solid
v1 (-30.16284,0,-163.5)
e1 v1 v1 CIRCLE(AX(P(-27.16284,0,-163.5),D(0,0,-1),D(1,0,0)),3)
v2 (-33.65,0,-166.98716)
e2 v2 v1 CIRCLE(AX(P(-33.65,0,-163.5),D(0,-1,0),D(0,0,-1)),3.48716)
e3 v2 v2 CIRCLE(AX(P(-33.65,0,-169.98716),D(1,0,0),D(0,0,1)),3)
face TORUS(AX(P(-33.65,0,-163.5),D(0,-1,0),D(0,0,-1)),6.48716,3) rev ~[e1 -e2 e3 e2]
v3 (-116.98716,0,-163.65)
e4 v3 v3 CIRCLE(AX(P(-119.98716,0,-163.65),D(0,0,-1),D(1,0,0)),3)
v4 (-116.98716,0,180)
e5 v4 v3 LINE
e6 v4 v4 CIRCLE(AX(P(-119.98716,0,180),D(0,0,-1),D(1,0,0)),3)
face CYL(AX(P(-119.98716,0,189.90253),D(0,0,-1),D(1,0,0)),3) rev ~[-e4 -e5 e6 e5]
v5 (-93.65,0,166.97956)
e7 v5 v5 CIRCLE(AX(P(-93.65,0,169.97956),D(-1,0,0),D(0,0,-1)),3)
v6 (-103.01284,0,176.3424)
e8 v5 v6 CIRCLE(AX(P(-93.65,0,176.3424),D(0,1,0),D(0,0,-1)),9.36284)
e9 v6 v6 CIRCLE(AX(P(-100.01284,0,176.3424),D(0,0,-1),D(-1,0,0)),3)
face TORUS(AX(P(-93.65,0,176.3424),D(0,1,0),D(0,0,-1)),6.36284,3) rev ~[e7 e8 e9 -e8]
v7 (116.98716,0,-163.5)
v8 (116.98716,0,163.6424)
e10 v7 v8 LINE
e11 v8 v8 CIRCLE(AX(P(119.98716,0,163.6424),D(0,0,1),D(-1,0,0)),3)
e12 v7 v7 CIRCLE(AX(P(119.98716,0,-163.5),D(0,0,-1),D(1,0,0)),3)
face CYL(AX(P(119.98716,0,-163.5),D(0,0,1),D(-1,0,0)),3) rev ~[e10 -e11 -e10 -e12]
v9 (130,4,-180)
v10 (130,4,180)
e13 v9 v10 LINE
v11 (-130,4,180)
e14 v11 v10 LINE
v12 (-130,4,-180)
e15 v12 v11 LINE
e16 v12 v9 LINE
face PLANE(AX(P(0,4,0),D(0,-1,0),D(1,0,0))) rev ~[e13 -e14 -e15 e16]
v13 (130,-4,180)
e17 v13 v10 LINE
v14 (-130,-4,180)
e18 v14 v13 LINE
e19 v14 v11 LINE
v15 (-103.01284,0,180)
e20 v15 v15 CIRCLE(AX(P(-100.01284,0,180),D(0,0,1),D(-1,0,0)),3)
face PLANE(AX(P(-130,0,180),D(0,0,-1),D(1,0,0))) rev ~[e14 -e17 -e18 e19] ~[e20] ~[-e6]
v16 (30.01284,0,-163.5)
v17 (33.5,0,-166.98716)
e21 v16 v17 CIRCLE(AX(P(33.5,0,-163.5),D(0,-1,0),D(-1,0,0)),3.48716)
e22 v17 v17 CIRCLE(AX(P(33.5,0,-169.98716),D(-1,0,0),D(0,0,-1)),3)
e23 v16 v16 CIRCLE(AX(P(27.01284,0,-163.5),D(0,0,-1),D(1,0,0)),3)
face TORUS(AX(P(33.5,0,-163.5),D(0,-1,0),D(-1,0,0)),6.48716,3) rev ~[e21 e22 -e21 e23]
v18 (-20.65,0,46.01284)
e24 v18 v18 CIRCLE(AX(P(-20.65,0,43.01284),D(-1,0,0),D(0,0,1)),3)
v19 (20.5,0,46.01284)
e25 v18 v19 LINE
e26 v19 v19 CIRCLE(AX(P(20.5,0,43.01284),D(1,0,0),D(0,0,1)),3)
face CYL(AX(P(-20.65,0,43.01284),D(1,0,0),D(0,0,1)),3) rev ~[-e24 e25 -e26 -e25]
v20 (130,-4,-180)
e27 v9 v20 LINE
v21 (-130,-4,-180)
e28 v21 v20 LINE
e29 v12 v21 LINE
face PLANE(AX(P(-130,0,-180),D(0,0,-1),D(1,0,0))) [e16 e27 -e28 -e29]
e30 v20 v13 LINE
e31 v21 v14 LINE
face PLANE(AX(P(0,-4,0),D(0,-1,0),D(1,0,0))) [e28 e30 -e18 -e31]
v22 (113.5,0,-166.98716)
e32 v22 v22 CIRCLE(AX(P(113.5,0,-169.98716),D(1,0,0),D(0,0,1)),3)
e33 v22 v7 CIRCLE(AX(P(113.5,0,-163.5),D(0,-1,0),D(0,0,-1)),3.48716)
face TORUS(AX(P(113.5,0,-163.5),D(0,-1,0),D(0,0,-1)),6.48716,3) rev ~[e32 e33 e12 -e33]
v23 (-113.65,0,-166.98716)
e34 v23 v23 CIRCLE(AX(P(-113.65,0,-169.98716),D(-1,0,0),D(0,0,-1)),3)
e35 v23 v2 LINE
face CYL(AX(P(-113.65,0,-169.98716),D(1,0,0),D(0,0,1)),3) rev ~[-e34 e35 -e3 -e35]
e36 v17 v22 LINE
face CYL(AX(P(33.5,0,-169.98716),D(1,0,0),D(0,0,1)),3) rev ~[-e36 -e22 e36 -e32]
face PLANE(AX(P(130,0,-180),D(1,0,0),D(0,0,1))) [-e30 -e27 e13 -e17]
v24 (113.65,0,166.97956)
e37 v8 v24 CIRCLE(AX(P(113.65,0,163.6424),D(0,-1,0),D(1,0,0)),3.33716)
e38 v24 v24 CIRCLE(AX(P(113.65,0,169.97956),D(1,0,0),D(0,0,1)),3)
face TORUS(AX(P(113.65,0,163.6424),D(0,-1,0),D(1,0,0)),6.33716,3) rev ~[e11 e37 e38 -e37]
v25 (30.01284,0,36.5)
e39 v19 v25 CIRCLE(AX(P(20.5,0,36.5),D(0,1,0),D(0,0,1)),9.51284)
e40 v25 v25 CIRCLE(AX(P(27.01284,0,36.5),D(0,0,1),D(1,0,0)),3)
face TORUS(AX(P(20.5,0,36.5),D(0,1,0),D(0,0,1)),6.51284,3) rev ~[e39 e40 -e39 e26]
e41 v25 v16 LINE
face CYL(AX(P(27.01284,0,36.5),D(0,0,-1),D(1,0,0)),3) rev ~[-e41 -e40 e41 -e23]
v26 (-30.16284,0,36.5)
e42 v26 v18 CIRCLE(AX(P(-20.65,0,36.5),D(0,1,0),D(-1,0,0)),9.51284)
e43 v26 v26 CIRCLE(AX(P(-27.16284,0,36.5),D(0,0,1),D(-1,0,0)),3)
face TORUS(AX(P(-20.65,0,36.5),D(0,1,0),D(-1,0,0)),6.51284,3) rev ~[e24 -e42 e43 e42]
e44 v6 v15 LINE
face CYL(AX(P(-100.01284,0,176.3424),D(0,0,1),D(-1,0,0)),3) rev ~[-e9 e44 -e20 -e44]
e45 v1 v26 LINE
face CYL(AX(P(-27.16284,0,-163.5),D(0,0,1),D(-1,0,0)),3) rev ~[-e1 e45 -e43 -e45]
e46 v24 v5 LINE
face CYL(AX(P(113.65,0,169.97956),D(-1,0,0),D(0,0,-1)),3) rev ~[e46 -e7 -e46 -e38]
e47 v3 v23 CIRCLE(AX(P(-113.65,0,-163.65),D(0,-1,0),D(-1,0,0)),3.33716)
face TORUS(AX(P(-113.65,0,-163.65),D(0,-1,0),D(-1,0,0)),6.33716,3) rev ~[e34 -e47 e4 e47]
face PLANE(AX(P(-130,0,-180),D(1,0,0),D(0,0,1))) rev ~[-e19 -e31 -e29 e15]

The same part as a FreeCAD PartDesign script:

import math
import FreeCAD as App
import Part
import Sketcher
from FreeCAD import Vector
Q = App.Units.Quantity

doc = App.newDocument("Part")
body = doc.addObject("PartDesign::Body", "Body")

# Sketch on XZ plane
sketch1 = body.newObject("Sketcher::SketchObject", "Sketch")
sketch1.AttachmentSupport = (doc.getObject("XZ_Plane"), [""])
sketch1.MapMode = "FlatFace"
sketch1.addGeometry([
    Part.LineSegment(Vector(-130, 180, 0), Vector(-130, -180, 0)),
    Part.LineSegment(Vector(-130, -180, 0), Vector(130, -180, 0)),
    Part.LineSegment(Vector(130, -180, 0), Vector(130, 180, 0)),
    Part.LineSegment(Vector(130, 180, 0), Vector(-130, 180, 0)),
], False)
sketch1.addConstraint([
    Sketcher.Constraint("Coincident", 0, 2, 1, 1),
    Sketcher.Constraint("Coincident", 1, 2, 2, 1),
    Sketcher.Constraint("Coincident", 2, 2, 3, 1),
    Sketcher.Constraint("Coincident", 3, 2, 0, 1),
    Sketcher.Constraint("Vertical", 0),
    Sketcher.Constraint("Horizontal", 1),
    Sketcher.Constraint("Vertical", 2),
    Sketcher.Constraint("Horizontal", 3),
    Sketcher.Constraint("Symmetric", 0, 2, 2, 2, -1, 1),
    Sketcher.Constraint("DistanceX", 1, 1, 1, 2, Q("260 mm")),
    Sketcher.Constraint("DistanceY", 0, 2, 0, 1, Q("360 mm")),
])
pad1 = body.newObject("PartDesign::Pad", "Pad")
pad1.Profile = sketch1
pad1.Length = 8
pad1.Midplane = True

# Sketch on XY plane
sketch2 = body.newObject("Sketcher::SketchObject", "Sketch001")
sketch2.AttachmentSupport = (doc.getObject("XY_Plane"), [""])
sketch2.MapMode = "FlatFace"
sketch2.AttachmentOffset = App.Placement(Vector(0, 0, 189.90253), App.Rotation())
sketch2.addGeometry(Part.Circle(Vector(-120, 0, 0), Vector(0, 0, 1), 3), False)
sketch2.addConstraint([
    Sketcher.Constraint("PointOnObject", 0, 3, -1),
    Sketcher.Constraint("Diameter", 0, Q("6 mm")),
    Sketcher.Constraint("DistanceX", 0, 3, -1, 1, Q("119.98716 mm")),
])

# Sketch on XZ plane
sketch3 = body.newObject("Sketcher::SketchObject", "Sketch002")
sketch3.AttachmentSupport = (doc.getObject("XZ_Plane"), [""])
sketch3.MapMode = "FlatFace"
sketch3.addGeometry([
    Part.LineSegment(Vector(-120, 190, 0), Vector(-120, -164, 0)),  # 0
    Part.ArcOfCircle(Part.Circle(Vector(-114, -164, 0), Vector(0, 0, 1), 6), math.radians(180), math.radians(270)),  # 1
    Part.LineSegment(Vector(-114, -170, 0), Vector(-34, -170, 0)),  # 2
    Part.ArcOfCircle(Part.Circle(Vector(-34, -164, 0), Vector(0, 0, 1), 6), math.radians(-90), math.radians(0)),  # 3
    Part.LineSegment(Vector(-27, -164, 0), Vector(-27, 36, 0)),  # 4
    Part.ArcOfCircle(Part.Circle(Vector(-21, 36, 0), Vector(0, 0, 1), 6), math.radians(90), math.radians(180)),  # 5
    Part.LineSegment(Vector(-21, 43, 0), Vector(20, 43, 0)),  # 6
    Part.ArcOfCircle(Part.Circle(Vector(20, 36, 0), Vector(0, 0, 1), 6), math.radians(0), math.radians(90)),  # 7
    Part.LineSegment(Vector(27, 36, 0), Vector(27, -164, 0)),  # 8
    Part.ArcOfCircle(Part.Circle(Vector(34, -164, 0), Vector(0, 0, 1), 6), math.radians(180), math.radians(270)),  # 9
    Part.LineSegment(Vector(34, -170, 0), Vector(114, -170, 0)),  # 10
    Part.ArcOfCircle(Part.Circle(Vector(114, -164, 0), Vector(0, 0, 1), 6), math.radians(-90), math.radians(0)),  # 11
    Part.LineSegment(Vector(120, -164, 0), Vector(120, 164, 0)),  # 12
    Part.ArcOfCircle(Part.Circle(Vector(114, 164, 0), Vector(0, 0, 1), 6), math.radians(0), math.radians(90)),  # 13
    Part.LineSegment(Vector(114, 170, 0), Vector(-94, 170, 0)),  # 14
    Part.ArcOfCircle(Part.Circle(Vector(-94, 176, 0), Vector(0, 0, 1), 6), math.radians(180), math.radians(270)),  # 15
    Part.LineSegment(Vector(-100, 176, 0), Vector(-100, 190, 0)),  # 16
], False)
sketch3.addConstraint([
    Sketcher.Constraint("Tangent", 0, 2, 1, 1),
    Sketcher.Constraint("Tangent", 1, 2, 2, 1),
    Sketcher.Constraint("Tangent", 2, 2, 3, 1),
    Sketcher.Constraint("Tangent", 3, 2, 4, 1),
    Sketcher.Constraint("Tangent", 4, 2, 5, 2),
    Sketcher.Constraint("Tangent", 5, 1, 6, 1),
    Sketcher.Constraint("Tangent", 6, 2, 7, 2),
    Sketcher.Constraint("Tangent", 7, 1, 8, 1),
    Sketcher.Constraint("Tangent", 8, 2, 9, 1),
    Sketcher.Constraint("Tangent", 9, 2, 10, 1),
    Sketcher.Constraint("Tangent", 10, 2, 11, 1),
    Sketcher.Constraint("Tangent", 11, 2, 12, 1),
    Sketcher.Constraint("Tangent", 12, 2, 13, 1),
    Sketcher.Constraint("Tangent", 13, 2, 14, 1),
    Sketcher.Constraint("Tangent", 14, 2, 15, 2),
    Sketcher.Constraint("Tangent", 15, 1, 16, 1),
    Sketcher.Constraint("Vertical", 0),
    Sketcher.Constraint("Horizontal", 2),
    Sketcher.Constraint("Vertical", 4),
    Sketcher.Constraint("Horizontal", 6),
    Sketcher.Constraint("Vertical", 8),
    Sketcher.Constraint("Horizontal", 10),
    Sketcher.Constraint("Vertical", 12),
    Sketcher.Constraint("Horizontal", 14),
    Sketcher.Constraint("Vertical", 16),
    Sketcher.Constraint("Equal", 3, 5),
    Sketcher.Constraint("Equal", 5, 7),
    Sketcher.Constraint("Equal", 7, 9),
    Sketcher.Constraint("Equal", 9, 11),
    Sketcher.Constraint("Equal", 1, 13),
    Sketcher.Constraint("Equal", 13, 15),
    Sketcher.Constraint("Horizontal", 3, 3, 9, 3),
    Sketcher.Constraint("Horizontal", 0, 1, 16, 2),
    Sketcher.Constraint("Equal", 2, 10),
    Sketcher.Constraint("Radius", 3, Q("6.5 mm")),
    Sketcher.Constraint("DistanceX", 2, 1, 2, 2, Q("80 mm")),
    Sketcher.Constraint("DistanceY", 4, 1, 4, 2, Q("200 mm")),
    Sketcher.Constraint("Radius", 1, Q("6.35 mm")),
    Sketcher.Constraint("DistanceX", 14, 2, 14, 1, Q("207.3 mm")),
    Sketcher.Constraint("DistanceX", 0, 1, -1, 1, Q("120 mm")),
    Sketcher.Constraint("DistanceY", 1, 2, -1, 1, Q("170 mm")),
    Sketcher.Constraint("DistanceX", -1, 1, 7, 1, Q("27 mm")),
    Sketcher.Constraint("DistanceY", 12, 1, 12, 2, Q("327.1424 mm")),
    Sketcher.Constraint("DistanceY", 0, 2, 0, 1, Q("353.55253 mm")),
])
doc.recompute()

subtractivepipe = body.newObject("PartDesign::SubtractivePipe", "SubtractivePipe")
subtractivepipe.Profile = sketch2
subtractivepipe.Spine = (sketch3, ["Edge1", "Edge2", "Edge3", "Edge4", "Edge5", "Edge6", "Edge7", "Edge8", "Edge9", "Edge10", "Edge11", "Edge12", "Edge13", "Edge14", "Edge15", "Edge16", "Edge17"])

doc.recompute()
